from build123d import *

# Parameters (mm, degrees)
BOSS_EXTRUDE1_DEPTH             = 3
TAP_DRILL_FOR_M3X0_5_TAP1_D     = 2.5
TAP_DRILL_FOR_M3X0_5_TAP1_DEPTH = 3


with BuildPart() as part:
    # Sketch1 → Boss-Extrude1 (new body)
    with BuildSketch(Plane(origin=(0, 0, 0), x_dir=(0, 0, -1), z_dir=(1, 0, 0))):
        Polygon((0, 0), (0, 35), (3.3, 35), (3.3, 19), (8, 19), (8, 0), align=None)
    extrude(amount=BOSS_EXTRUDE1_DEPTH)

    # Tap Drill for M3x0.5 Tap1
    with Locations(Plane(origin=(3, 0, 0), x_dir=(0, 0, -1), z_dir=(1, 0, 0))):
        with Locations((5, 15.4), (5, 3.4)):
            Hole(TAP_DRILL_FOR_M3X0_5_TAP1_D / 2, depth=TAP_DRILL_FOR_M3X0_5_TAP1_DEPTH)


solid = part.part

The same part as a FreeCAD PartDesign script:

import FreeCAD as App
import Part
import Sketcher
from FreeCAD import Vector
Q = App.Units.Quantity


def add_polygon(sketch, points):
    """Adds a closed chain of lines whose ends are joined by coincident constraints."""
    first, n = sketch.GeometryCount, len(points)
    for a, b in zip(points, points[1:] + points[:1]):
        sketch.addGeometry(Part.LineSegment(App.Vector(*a, 0), App.Vector(*b, 0)), False)
    for i in range(n):
        sketch.addConstraint(Sketcher.Constraint("Coincident", first + i, 2, first + (i + 1) % n, 1))

doc = App.newDocument("Part")
body = doc.addObject("PartDesign::Body", "Body")

# Sketch on YZ plane
sketch1 = body.newObject("Sketcher::SketchObject", "Sketch")
sketch1.AttachmentSupport = (doc.getObject("YZ_Plane"), [""])
sketch1.MapMode = "FlatFace"
add_polygon(sketch1, [(35, 0), (0, 0), (0, -8), (19, -8), (19, -3.3), (35, -3.3)])  # lines 0-5
sketch1.addConstraint(Sketcher.Constraint("Horizontal", 0))
sketch1.addConstraint(Sketcher.Constraint("Vertical", 1))
sketch1.addConstraint(Sketcher.Constraint("Horizontal", 2))
sketch1.addConstraint(Sketcher.Constraint("Vertical", 3))
sketch1.addConstraint(Sketcher.Constraint("Horizontal", 4))
sketch1.addConstraint(Sketcher.Constraint("Vertical", 5))
sketch1.addConstraint(Sketcher.Constraint("Coincident", 0, 2, -1, 1))
sketch1.addConstraint(Sketcher.Constraint("DistanceX", 0, 2, 0, 1, Q("35 mm")))
sketch1.addConstraint(Sketcher.Constraint("DistanceX", 2, 1, 2, 2, Q("19 mm")))
sketch1.addConstraint(Sketcher.Constraint("DistanceY", 1, 2, 1, 1, Q("8 mm")))
sketch1.addConstraint(Sketcher.Constraint("DistanceY", 3, 1, 3, 2, Q("4.7 mm")))
pad1 = body.newObject("PartDesign::Pad", "Pad")
pad1.Profile = sketch1
pad1.Length = 3

# Sketch on YZ plane
sketch2 = body.newObject("Sketcher::SketchObject", "Sketch001")
sketch2.AttachmentSupport = (doc.getObject("YZ_Plane"), [""])
sketch2.MapMode = "FlatFace"
sketch2.AttachmentOffset = App.Placement(Vector(0, 0, 3), App.Rotation())
sketch2.addGeometry(Part.Circle(Vector(15.4, -5, 0), Vector(0, 0, 1), 1.25), False)
sketch2.addGeometry(Part.Circle(Vector(3.4, -5, 0), Vector(0, 0, 1), 1.25), False)
sketch2.addConstraint(Sketcher.Constraint("Equal", 0, 1))
sketch2.addConstraint(Sketcher.Constraint("Horizontal", 0, 3, 1, 3))
sketch2.addConstraint(Sketcher.Constraint("Diameter", 0, Q("2.5 mm")))
sketch2.addConstraint(Sketcher.Constraint("DistanceY", 0, 3, -1, 1, Q("5 mm")))
sketch2.addConstraint(Sketcher.Constraint("DistanceX", 1, 3, 0, 3, Q("12 mm")))
sketch2.addConstraint(Sketcher.Constraint("DistanceX", -1, 1, 0, 3, Q("15.4 mm")))
doc.recompute()
hole = body.newObject("PartDesign::Hole", "Hole")
hole.Profile = sketch2
hole.ThreadType = "None"
hole.Diameter = 2.5
hole.DepthType = "Dimension"
hole.Depth = 3
hole.DrillPoint = "Flat"

doc.recompute()
